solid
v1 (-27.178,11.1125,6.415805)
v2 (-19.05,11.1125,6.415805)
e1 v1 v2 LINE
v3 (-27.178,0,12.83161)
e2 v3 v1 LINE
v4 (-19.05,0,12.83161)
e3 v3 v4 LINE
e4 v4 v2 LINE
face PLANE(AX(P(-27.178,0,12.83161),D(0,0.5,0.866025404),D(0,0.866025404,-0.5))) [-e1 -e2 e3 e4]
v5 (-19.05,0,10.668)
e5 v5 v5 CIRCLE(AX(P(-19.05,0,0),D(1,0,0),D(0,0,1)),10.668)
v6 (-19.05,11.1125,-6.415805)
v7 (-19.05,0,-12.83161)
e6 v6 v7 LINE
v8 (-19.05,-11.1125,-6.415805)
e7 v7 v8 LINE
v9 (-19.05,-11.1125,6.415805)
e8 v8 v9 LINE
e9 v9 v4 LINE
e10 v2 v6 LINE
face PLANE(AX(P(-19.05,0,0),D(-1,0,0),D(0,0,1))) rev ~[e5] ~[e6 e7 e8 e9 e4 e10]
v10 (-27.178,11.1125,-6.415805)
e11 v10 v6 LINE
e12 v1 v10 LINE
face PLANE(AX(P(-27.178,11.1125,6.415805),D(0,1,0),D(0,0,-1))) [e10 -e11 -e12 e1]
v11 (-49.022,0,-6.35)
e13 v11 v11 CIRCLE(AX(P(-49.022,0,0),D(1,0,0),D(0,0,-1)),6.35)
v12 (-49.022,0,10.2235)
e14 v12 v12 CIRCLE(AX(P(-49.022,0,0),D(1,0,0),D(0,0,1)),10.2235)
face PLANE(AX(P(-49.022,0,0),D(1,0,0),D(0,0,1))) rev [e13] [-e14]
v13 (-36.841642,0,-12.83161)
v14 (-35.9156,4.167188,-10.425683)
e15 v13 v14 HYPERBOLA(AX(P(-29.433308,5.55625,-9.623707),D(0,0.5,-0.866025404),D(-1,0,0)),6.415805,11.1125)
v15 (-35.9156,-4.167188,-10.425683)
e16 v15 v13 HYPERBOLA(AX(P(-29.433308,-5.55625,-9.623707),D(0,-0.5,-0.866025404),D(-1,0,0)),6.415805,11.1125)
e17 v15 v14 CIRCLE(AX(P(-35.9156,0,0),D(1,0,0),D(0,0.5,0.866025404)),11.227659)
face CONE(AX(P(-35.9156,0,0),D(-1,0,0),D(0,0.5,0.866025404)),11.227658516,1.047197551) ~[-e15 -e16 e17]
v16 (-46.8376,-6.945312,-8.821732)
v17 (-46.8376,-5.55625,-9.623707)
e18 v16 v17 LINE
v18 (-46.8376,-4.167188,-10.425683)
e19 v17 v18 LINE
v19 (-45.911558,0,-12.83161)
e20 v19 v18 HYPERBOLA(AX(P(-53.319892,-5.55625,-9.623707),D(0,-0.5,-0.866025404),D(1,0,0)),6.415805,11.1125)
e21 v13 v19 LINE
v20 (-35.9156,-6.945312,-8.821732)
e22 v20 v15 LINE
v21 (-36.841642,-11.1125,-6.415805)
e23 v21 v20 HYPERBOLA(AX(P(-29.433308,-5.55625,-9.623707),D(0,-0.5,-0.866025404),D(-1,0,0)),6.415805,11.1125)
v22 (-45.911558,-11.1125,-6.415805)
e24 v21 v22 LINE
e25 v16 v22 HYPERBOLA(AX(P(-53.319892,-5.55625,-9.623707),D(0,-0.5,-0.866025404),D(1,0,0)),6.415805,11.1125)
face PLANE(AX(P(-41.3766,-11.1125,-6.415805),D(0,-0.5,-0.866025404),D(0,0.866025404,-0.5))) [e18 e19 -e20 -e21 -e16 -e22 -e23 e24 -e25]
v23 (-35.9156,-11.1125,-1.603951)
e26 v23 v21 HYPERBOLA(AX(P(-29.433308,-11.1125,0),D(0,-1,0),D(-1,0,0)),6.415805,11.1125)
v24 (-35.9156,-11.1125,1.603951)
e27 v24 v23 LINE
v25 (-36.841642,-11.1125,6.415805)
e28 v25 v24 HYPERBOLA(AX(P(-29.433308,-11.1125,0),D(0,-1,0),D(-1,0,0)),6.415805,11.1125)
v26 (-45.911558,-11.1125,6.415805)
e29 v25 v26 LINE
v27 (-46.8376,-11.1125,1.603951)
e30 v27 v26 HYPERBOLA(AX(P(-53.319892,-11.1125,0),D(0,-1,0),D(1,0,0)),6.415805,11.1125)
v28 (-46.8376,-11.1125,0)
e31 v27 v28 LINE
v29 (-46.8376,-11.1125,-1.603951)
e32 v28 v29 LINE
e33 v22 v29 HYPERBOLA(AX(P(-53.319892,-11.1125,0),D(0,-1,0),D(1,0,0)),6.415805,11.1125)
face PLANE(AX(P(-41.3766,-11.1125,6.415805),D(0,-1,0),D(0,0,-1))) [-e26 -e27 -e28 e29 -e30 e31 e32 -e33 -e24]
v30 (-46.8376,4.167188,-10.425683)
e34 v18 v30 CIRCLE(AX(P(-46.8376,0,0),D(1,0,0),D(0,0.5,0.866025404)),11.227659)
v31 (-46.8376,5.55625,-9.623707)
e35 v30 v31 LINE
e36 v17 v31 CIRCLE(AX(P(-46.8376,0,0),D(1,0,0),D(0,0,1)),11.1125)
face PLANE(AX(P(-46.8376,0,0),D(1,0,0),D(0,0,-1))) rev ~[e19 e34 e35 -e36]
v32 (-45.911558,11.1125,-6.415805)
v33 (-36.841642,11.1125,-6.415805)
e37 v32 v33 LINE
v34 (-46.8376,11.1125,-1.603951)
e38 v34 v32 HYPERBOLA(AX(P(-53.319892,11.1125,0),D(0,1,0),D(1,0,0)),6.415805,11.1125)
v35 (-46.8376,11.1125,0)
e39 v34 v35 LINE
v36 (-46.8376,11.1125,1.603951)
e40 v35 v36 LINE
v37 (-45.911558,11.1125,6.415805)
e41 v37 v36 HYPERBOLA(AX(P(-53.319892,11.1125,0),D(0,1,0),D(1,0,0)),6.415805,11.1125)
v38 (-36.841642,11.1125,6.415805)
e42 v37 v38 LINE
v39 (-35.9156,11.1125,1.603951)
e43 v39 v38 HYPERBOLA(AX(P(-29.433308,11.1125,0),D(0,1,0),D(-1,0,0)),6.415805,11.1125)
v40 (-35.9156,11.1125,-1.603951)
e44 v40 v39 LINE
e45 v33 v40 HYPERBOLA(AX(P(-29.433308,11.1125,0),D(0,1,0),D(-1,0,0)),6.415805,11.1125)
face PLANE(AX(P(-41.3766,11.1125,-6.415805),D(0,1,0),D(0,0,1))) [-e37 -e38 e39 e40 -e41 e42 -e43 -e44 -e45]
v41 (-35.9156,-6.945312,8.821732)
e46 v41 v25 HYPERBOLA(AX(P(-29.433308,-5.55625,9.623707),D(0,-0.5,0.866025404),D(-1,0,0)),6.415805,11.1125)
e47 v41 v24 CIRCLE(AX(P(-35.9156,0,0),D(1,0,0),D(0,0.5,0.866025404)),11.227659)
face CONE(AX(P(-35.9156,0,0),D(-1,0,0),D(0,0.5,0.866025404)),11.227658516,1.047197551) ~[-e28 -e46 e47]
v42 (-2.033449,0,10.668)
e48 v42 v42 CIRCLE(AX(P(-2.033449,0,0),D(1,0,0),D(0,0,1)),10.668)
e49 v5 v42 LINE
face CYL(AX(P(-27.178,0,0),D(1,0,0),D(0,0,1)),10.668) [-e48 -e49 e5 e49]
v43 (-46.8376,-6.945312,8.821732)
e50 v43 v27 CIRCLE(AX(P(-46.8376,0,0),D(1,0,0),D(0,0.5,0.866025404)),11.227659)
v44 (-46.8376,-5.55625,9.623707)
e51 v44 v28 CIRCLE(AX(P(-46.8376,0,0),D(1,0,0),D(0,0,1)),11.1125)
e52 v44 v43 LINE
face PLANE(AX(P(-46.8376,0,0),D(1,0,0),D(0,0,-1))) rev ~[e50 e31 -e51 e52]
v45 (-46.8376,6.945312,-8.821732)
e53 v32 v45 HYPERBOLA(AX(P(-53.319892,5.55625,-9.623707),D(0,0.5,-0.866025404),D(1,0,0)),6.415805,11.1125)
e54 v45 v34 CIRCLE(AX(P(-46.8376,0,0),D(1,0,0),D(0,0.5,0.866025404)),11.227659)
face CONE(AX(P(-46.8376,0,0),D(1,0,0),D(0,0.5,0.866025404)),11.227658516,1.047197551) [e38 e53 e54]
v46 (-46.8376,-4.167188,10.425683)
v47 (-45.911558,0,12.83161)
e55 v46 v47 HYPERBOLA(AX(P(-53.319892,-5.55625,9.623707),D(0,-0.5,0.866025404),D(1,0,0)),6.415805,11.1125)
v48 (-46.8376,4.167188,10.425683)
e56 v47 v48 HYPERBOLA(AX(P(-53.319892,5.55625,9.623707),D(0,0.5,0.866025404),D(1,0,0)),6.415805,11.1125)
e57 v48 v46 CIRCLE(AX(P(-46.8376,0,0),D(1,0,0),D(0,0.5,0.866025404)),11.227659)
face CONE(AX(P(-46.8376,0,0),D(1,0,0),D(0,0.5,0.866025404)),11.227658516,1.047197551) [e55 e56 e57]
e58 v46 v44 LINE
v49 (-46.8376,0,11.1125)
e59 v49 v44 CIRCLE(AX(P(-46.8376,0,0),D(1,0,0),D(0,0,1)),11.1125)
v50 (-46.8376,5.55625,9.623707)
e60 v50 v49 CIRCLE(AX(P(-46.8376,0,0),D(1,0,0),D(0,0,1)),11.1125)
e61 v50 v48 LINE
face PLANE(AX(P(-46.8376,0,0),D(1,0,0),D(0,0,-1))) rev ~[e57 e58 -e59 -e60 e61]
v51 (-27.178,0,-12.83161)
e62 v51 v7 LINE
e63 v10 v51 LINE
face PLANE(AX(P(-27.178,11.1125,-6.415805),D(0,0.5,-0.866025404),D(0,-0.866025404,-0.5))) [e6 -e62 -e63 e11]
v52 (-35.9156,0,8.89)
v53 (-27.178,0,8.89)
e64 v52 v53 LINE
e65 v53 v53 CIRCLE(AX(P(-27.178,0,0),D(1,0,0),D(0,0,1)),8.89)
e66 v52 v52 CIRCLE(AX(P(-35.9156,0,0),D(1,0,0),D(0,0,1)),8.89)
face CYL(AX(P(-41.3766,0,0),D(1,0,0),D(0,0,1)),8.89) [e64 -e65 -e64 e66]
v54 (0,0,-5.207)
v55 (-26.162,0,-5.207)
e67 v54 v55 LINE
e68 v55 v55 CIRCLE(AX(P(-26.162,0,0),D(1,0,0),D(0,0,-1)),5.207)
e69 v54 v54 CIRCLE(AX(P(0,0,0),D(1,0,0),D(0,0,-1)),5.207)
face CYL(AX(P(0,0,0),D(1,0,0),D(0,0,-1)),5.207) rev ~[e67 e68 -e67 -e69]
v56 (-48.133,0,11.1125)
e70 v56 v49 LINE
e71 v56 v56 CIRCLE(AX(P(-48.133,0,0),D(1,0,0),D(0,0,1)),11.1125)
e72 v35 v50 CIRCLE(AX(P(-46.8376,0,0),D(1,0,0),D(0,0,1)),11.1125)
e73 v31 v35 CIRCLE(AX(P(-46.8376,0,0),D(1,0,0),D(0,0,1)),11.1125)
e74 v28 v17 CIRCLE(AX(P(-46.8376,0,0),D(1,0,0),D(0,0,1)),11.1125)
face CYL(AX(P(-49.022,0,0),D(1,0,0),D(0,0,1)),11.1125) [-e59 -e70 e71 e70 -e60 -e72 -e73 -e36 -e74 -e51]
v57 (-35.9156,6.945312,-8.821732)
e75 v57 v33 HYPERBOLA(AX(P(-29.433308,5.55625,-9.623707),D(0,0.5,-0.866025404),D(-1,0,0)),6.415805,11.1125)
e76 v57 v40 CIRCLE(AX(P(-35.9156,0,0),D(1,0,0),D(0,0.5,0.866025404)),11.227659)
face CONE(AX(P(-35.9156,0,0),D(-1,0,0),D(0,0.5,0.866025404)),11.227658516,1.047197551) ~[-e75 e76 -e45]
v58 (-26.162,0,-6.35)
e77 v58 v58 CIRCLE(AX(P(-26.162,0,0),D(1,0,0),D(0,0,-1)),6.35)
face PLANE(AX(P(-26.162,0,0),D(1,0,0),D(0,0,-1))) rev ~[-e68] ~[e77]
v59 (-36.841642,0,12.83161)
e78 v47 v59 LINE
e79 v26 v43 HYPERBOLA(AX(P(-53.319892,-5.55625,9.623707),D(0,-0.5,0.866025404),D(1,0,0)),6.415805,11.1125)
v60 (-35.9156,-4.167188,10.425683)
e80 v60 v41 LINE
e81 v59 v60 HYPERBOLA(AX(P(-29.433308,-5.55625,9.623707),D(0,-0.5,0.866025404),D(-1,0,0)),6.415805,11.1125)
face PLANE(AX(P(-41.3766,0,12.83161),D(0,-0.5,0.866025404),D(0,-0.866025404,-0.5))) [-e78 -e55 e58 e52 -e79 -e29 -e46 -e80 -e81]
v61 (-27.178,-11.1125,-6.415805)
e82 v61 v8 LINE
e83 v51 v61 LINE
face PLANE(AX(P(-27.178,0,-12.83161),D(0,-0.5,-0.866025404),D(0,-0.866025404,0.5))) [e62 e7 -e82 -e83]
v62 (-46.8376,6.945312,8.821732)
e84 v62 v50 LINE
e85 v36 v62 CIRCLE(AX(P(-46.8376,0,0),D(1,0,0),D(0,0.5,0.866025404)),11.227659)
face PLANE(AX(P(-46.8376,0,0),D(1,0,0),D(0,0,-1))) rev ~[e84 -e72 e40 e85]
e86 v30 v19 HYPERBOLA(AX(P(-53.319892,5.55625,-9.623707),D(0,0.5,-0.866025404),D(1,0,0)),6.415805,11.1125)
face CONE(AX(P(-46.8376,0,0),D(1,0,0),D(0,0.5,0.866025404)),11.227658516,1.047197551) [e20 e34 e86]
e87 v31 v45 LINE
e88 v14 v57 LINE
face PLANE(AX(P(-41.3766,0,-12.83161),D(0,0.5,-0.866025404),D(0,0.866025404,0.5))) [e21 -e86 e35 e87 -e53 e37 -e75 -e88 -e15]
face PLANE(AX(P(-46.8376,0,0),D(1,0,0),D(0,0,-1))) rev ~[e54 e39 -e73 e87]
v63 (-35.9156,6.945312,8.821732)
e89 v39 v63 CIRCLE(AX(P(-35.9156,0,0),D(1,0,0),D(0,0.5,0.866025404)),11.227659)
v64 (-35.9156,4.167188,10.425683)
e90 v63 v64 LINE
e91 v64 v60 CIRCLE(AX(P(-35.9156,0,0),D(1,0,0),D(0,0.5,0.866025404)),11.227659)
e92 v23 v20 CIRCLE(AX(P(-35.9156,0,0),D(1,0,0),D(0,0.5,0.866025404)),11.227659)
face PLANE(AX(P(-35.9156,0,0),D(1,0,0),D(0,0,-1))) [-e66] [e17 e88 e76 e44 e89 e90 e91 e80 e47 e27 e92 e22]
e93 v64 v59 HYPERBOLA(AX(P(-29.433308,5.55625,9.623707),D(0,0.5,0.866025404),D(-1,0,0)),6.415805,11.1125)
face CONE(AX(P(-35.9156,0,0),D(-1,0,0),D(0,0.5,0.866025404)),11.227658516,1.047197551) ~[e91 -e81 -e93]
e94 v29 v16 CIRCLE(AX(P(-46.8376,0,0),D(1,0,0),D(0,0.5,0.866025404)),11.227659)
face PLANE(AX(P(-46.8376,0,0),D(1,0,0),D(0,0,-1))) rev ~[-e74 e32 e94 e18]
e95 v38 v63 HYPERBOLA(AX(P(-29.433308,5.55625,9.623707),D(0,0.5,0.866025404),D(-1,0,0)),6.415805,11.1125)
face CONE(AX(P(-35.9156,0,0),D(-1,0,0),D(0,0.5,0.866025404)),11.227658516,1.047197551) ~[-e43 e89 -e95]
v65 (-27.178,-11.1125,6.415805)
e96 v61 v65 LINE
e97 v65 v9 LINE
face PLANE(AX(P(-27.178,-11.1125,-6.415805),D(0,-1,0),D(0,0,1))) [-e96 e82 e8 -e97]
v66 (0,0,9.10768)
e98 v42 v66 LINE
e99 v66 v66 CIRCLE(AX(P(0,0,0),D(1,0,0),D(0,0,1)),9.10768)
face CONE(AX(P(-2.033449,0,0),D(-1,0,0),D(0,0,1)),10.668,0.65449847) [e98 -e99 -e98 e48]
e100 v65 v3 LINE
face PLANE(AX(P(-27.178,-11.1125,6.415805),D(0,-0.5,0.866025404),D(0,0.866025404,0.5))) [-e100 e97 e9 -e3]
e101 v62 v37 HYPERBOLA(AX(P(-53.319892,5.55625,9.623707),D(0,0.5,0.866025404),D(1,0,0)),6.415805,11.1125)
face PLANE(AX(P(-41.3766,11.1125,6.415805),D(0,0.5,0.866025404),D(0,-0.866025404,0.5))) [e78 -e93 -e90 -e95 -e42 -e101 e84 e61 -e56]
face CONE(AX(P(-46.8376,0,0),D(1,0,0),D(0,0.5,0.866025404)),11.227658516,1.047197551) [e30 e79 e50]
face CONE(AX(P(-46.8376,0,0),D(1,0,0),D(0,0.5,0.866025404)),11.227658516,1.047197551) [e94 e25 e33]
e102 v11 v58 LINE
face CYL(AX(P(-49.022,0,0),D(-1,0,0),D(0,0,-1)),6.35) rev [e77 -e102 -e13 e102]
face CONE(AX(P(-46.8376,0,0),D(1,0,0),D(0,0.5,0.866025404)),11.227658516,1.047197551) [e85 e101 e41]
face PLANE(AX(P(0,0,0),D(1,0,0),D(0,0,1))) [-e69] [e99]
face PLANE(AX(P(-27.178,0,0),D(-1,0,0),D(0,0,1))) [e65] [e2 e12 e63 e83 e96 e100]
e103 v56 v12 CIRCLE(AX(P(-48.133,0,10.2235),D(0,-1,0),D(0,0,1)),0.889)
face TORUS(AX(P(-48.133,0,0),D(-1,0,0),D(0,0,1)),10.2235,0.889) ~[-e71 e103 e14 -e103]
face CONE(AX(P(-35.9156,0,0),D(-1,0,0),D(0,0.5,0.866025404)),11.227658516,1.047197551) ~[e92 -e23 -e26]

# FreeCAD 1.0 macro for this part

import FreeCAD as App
import Part
import Sketcher
from FreeCAD import Vector
Q = App.Units.Quantity


def edges_at(feature, points):
    """Names of the edges that pass closest to the given points."""
    edges = feature.Shape.Edges
    near = lambda p: min(range(len(edges)), key=lambda i: edges[i].distToShape(Part.Vertex(*p))[0])
    return sorted({f"Edge{near(p) + 1}" for p in points})


def add_polygon(sketch, points):
    """Adds a closed chain of lines whose ends are joined by coincident constraints."""
    first, n = sketch.GeometryCount, len(points)
    for a, b in zip(points, points[1:] + points[:1]):
        sketch.addGeometry(Part.LineSegment(App.Vector(*a, 0), App.Vector(*b, 0)), False)
    for i in range(n):
        sketch.addConstraint(Sketcher.Constraint("Coincident", first + i, 2, first + (i + 1) % n, 1))

doc = App.newDocument("Part")
body = doc.addObject("PartDesign::Body", "Body")

# Sketch on XY plane
sketch1 = doc.addObject("Sketcher::SketchObject", "Sketch")
body.addObject(sketch1)
sketch1.AttachmentSupport = (doc.XY_Plane, [""])
sketch1.MapMode = "FlatFace"
add_polygon(sketch1, [(-49.022, 11.1125), (-49.022, 0), (0, 0), (0, 9.10768), (-2.033449, 10.668), (-27.178, 10.668), (-27.178, 8.89), (-41.3766, 8.89), (-41.3766, 11.1125)])  # lines 0-8
sketch1.addConstraint([
    Sketcher.Constraint("Vertical", 0),
    Sketcher.Constraint("Horizontal", 1),
    Sketcher.Constraint("Vertical", 2),
    Sketcher.Constraint("Horizontal", 4),
    Sketcher.Constraint("Vertical", 5),
    Sketcher.Constraint("Horizontal", 6),
    Sketcher.Constraint("Vertical", 7),
    Sketcher.Constraint("Horizontal", 8),
    Sketcher.Constraint("Coincident", 1, 2, -1, 1),
    Sketcher.Constraint("DistanceX", 1, 1, 1, 2, Q("1.93 in")),
    Sketcher.Constraint("DistanceY", 5, 2, 5, 1, Q("0.07 in")),
    Sketcher.Constraint("Angle", 3, Q("142.5 deg")),
    Sketcher.Constraint("DistanceX", 6, 2, 6, 1, Q("0.559 in")),
    Sketcher.Constraint("DistanceX", 8, 2, 8, 1, Q("0.301 in")),
    Sketcher.Constraint("DistanceY", 0, 2, 0, 1, Q("0.4375 in")),
    Sketcher.Constraint("DistanceY", -1, 1, 3, 2, Q("0.42 in")),
    Sketcher.Constraint("DistanceX", 4, 2, 4, 1, Q("25.144551 mm")),
])
revolution = doc.addObject("PartDesign::Revolution", "Revolution")
body.addObject(revolution)
revolution.Profile = sketch1
revolution.ReferenceAxis = (sketch1, ["H_Axis"])
revolution.Angle = 360

# Sketch on YZ plane
sketch2 = doc.addObject("Sketcher::SketchObject", "Sketch001")
body.addObject(sketch2)
sketch2.AttachmentSupport = (doc.YZ_Plane, [""])
sketch2.MapMode = "FlatFace"
sketch2.AttachmentOffset = App.Placement(Vector(0, 0, -1.629 * 25.4), App.Rotation())
add_polygon(sketch2, [(0, -12.83161), (11.1125, -6.415805), (11.1125, 6.415805), (0, 12.83161), (-11.1125, 6.415805), (-11.1125, -6.415805)])  # lines 0-5
sketch2.addConstraint([
    Sketcher.Constraint("Vertical", 1),
    Sketcher.Constraint("Vertical", 4),
    Sketcher.Constraint("Symmetric", 0, 2, 3, 2, -1, 1),
    Sketcher.Constraint("Symmetric", 2, 2, 5, 2, -1, 1),
    Sketcher.Constraint("PointOnObject", 2, 2, -2),
    Sketcher.Constraint("Parallel", 2, 5),
    Sketcher.Constraint("Horizontal", 1, 2, 3, 2),
    Sketcher.Constraint("Angle", 0, Q("30 deg")),
    Sketcher.Constraint("DistanceX", -1, 1, 0, 2, Q("0.4375 in")),
    Sketcher.Constraint("DistanceY", 1, 1, 1, 2, Q("12.83161 mm")),
])
pad1 = doc.addObject("PartDesign::Pad", "Pad")
body.addObject(pad1)
pad1.Profile = sketch2
pad1.Length = Q("0.43 in")
pad1.Midplane = True
doc.recompute()

fillet = doc.addObject("PartDesign::Fillet", "Fillet")
body.addObject(fillet)
fillet.Base = (pad1, edges_at(pad1, [(-49.022, 0, -11.113)]))
fillet.Radius = Q("0.035 in")

# Sketch on XZ plane
sketch3 = doc.addObject("Sketcher::SketchObject", "Sketch002")
body.addObject(sketch3)
sketch3.AttachmentSupport = (doc.XZ_Plane, [""])
sketch3.MapMode = "FlatFace"
add_polygon(sketch3, [(-46.8376, -11.227659), (-45.911558, -12.83161), (-46.8376, -12.83161)])  # lines 0-2
add_polygon(sketch3, [(-36.841642, -12.83161), (-35.9156, -11.227659), (-35.9156, -12.83161)])  # lines 3-5
sketch3.addConstraint([
    Sketcher.Constraint("Horizontal", 1),
    Sketcher.Constraint("Vertical", 2),
    Sketcher.Constraint("Vertical", 4),
    Sketcher.Constraint("Horizontal", 5),
    Sketcher.Constraint("Horizontal", 2, 2, 3, 2),
    Sketcher.Constraint("Horizontal", 1, 2, 4, 2),
    Sketcher.Constraint("Equal", 1, 5),
    Sketcher.Constraint("Angle", 0, Q("-60 deg")),
    Sketcher.Constraint("DistanceX", 2, 2, 3, 2, Q("0.43 in")),
    Sketcher.Constraint("DistanceX", 1, 2, -1, 1, Q("1.844 in")),
    Sketcher.Constraint("DistanceX", 1, 2, 1, 1, Q("0.926042 mm")),
    Sketcher.Constraint("DistanceY", 0, 2, -1, 1, Q("12.83161 mm")),
])
groove = doc.addObject("PartDesign::Groove", "Groove")
body.addObject(groove)
groove.Profile = sketch3
groove.ReferenceAxis = (sketch3, ["H_Axis"])
groove.Angle = 360

# Sketch on YZ plane
sketch4 = doc.addObject("Sketcher::SketchObject", "Sketch003")
body.addObject(sketch4)
sketch4.AttachmentSupport = (doc.YZ_Plane, [""])
sketch4.MapMode = "FlatFace"
sketch4.AttachmentOffset = App.Placement(Vector(0, 0, -1.07 * 25.4), App.Rotation())
add_polygon(sketch4, [(0, 12.83161), (11.1125, 6.415805), (11.1125, -6.415805), (0, -12.83161), (-11.1125, -6.415805), (-11.1125, 6.415805)])  # lines 0-5
sketch4.addConstraint([
    Sketcher.Constraint("Vertical", 1),
    Sketcher.Constraint("Vertical", 4),
    Sketcher.Constraint("Symmetric", 0, 2, 3, 2, -1, 1),
    Sketcher.Constraint("Symmetric", 2, 2, 5, 2, -1, 1),
    Sketcher.Constraint("PointOnObject", 2, 2, -2),
    Sketcher.Constraint("Parallel", 2, 5),
    Sketcher.Constraint("Horizontal", 1, 2, 3, 2),
    Sketcher.Constraint("Angle", 0, Q("-30 deg")),
    Sketcher.Constraint("DistanceX", -1, 1, 0, 2, Q("0.4375 in")),
    Sketcher.Constraint("DistanceY", 1, 2, 1, 1, Q("12.83161 mm")),
])
pad2 = doc.addObject("PartDesign::Pad", "Pad001")
body.addObject(pad2)
pad2.Profile = sketch4
pad2.Length = Q("0.32 in")

# Sketch on YZ plane
sketch5 = doc.addObject("Sketcher::SketchObject", "Sketch004")
body.addObject(sketch5)
sketch5.AttachmentSupport = (doc.YZ_Plane, [""])
sketch5.MapMode = "FlatFace"
sketch5.AttachmentOffset = App.Placement(Vector(0, 0, -1.93 * 25.4), App.Rotation())
sketch5.addGeometry(Part.Circle(Vector(0, 0, 0), Vector(0, 0, 1), 6.35), False)
sketch5.addConstraint([
    Sketcher.Constraint("Coincident", 0, 3, -1, 1),
    Sketcher.Constraint("Diameter", 0, Q("0.5 in")),
])
pocket1 = doc.addObject("PartDesign::Pocket", "Pocket")
body.addObject(pocket1)
pocket1.Profile = sketch5
pocket1.Length = Q("0.9 in")
pocket1.Reversed = True

# Sketch on YZ plane
sketch6 = doc.addObject("Sketcher::SketchObject", "Sketch005")
body.addObject(sketch6)
sketch6.AttachmentSupport = (doc.YZ_Plane, [""])
sketch6.MapMode = "FlatFace"
sketch6.addGeometry(Part.Circle(Vector(0, 0, 0), Vector(0, 0, 1), 5.207), False)
sketch6.addConstraint([
    Sketcher.Constraint("Coincident", 0, 3, -1, 1),
    Sketcher.Constraint("Diameter", 0, Q("0.41 in")),
])
pocket2 = doc.addObject("PartDesign::Pocket", "Pocket001")
body.addObject(pocket2)
pocket2.Profile = sketch6
pocket2.Length = Q("1.03 in")

doc.recompute()
